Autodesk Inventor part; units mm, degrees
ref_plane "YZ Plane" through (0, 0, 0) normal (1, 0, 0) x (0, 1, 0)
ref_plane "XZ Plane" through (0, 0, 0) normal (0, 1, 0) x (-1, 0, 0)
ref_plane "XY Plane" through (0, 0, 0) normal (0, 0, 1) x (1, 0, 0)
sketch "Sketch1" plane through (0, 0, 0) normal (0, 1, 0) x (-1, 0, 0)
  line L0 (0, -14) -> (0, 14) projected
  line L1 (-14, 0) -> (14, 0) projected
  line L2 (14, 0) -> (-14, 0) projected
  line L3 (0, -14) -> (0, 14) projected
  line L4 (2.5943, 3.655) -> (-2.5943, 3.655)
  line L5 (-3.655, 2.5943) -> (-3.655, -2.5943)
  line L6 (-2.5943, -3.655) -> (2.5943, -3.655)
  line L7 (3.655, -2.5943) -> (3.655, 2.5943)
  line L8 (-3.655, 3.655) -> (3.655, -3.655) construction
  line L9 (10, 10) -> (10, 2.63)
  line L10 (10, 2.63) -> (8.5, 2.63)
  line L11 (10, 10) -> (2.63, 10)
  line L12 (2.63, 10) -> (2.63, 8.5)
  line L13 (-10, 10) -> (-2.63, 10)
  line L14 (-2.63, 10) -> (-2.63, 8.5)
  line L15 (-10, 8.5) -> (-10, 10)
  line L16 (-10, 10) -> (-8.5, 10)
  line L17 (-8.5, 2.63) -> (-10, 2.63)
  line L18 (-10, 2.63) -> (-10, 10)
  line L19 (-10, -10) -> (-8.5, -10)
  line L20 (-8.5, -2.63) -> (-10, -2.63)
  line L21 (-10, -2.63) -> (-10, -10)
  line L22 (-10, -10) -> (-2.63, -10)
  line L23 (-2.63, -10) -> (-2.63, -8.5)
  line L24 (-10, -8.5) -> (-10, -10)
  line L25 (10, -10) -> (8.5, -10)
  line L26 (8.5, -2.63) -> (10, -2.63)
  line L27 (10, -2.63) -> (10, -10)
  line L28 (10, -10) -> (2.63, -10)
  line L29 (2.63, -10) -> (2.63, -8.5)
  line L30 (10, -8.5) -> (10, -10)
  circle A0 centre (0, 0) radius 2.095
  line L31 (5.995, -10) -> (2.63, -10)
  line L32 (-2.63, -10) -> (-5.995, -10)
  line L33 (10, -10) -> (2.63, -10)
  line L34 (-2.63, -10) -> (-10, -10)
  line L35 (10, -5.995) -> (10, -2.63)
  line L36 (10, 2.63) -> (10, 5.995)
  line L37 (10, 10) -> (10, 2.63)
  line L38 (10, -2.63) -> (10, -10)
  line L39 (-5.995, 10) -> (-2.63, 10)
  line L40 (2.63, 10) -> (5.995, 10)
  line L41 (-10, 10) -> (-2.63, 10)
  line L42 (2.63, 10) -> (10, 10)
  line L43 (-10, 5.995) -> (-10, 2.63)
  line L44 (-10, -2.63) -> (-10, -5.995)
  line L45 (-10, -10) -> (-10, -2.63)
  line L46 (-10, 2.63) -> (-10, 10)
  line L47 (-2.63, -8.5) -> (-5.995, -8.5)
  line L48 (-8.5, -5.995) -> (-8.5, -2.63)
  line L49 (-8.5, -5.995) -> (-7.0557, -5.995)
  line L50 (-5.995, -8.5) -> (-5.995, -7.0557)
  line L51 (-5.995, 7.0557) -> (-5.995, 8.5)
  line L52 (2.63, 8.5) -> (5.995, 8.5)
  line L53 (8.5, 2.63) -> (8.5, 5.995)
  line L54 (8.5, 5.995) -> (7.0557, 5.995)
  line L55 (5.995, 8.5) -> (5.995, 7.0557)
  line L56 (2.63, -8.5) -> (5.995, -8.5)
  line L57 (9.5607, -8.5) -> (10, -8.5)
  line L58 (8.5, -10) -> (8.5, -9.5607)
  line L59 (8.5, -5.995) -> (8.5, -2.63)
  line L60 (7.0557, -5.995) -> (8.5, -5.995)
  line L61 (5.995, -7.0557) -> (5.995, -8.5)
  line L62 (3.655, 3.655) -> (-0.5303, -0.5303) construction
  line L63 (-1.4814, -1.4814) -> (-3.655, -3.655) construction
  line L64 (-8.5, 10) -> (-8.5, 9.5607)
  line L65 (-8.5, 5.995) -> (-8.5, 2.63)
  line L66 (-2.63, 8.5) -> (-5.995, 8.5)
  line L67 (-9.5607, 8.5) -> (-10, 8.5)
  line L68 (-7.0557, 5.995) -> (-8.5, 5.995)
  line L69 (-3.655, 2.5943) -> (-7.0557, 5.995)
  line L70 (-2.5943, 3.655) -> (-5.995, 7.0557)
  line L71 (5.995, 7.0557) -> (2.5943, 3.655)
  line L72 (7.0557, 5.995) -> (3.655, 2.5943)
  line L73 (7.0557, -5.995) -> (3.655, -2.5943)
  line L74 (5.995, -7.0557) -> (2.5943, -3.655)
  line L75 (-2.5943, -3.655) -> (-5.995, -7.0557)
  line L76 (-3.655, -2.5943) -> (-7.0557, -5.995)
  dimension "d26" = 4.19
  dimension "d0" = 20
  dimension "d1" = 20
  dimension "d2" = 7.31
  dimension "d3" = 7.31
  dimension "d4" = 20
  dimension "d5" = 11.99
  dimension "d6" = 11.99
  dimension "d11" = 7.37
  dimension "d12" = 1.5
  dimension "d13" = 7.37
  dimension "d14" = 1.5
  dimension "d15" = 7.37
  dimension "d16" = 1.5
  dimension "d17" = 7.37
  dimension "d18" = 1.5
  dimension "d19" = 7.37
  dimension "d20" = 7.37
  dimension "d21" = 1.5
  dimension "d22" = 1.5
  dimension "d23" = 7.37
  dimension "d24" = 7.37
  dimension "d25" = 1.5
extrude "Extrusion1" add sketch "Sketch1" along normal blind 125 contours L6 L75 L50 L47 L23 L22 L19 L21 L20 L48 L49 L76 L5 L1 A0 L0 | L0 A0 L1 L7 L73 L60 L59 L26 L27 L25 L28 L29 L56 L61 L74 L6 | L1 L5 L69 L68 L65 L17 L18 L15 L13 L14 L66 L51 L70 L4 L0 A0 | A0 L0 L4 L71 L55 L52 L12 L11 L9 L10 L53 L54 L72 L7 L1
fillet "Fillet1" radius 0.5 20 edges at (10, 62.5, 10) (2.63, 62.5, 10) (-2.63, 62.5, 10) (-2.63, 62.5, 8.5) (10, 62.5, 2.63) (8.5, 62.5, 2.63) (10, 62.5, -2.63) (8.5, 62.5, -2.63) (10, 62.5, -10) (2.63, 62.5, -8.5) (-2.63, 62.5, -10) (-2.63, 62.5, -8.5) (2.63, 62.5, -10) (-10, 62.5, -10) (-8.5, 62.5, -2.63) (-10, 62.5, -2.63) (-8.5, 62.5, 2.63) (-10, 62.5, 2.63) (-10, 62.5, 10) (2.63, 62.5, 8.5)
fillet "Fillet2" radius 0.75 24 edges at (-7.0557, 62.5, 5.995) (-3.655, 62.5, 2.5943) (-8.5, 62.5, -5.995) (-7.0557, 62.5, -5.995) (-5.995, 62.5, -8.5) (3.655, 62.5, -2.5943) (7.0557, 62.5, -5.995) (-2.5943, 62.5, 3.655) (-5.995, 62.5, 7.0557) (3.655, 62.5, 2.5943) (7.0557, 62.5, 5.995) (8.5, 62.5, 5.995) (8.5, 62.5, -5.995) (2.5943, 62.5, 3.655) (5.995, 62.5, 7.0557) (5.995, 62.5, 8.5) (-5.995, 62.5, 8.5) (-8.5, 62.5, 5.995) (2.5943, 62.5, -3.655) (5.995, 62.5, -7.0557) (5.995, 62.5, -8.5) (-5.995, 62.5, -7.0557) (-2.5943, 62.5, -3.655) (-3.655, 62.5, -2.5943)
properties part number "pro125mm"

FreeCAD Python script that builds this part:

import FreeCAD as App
import Part
import Sketcher
from FreeCAD import Vector
Q = App.Units.Quantity


def edges_at(feature, points):
    """Names of the edges that pass closest to the given points."""
    edges = feature.Shape.Edges
    near = lambda p: min(range(len(edges)), key=lambda i: edges[i].distToShape(Part.Vertex(*p))[0])
    return sorted({f"Edge{near(p) + 1}" for p in points})

doc = App.newDocument("Part")
params = doc.addObject("Spreadsheet::Sheet", "Params")
for row, (alias, value) in enumerate([
    ("sketch1_diameter", "4.19 mm"),
    ("sketch1_width", "1.5 mm"),
    ("sketch1_width2", "7.37 mm"),
    ("pad1_length", "125 mm"),
    ("fillet_radius", "0.5 mm"),
    ("fillet2_radius", "0.75 mm"),
], start=1):
    params.set(f"A{row}", alias)
    params.set(f"B{row}", "=" + value)
    params.setAlias(f"B{row}", alias)

body = doc.addObject("PartDesign::Body", "Body")

sketch1 = body.newObject("Sketcher::SketchObject", "Sketch")
sketch1.AttachmentSupport = (doc.getObject("XZ_Plane"), [""])
sketch1.MapMode = "FlatFace"
sketch1.addGeometry([
    Part.LineSegment(Vector(2.5943, -3.655, 0), Vector(-2.5943, -3.655, 0)),
    Part.LineSegment(Vector(-2.5943, -3.655, 0), Vector(-5.995, -7.0557, 0)),
    Part.LineSegment(Vector(-5.995, -7.0557, 0), Vector(-5.995, -8.5, 0)),
    Part.LineSegment(Vector(-5.995, -8.5, 0), Vector(-2.63, -8.5, 0)),
    Part.LineSegment(Vector(-2.63, -8.5, 0), Vector(-2.63, -10, 0)),
    Part.LineSegment(Vector(-2.63, -10, 0), Vector(-10, -10, 0)),
    Part.LineSegment(Vector(-10, -10, 0), Vector(-10, -2.63, 0)),
    Part.LineSegment(Vector(-10, -2.63, 0), Vector(-8.5, -2.63, 0)),
    Part.LineSegment(Vector(-8.5, -2.63, 0), Vector(-8.5, -5.995, 0)),
    Part.LineSegment(Vector(-8.5, -5.995, 0), Vector(-7.0557, -5.995, 0)),
    Part.LineSegment(Vector(-7.0557, -5.995, 0), Vector(-3.655, -2.5943, 0)),
    Part.LineSegment(Vector(-3.655, -2.5943, 0), Vector(-3.655, 2.5943, 0)),
    Part.LineSegment(Vector(-3.655, 2.5943, 0), Vector(-7.0557, 5.995, 0)),
    Part.LineSegment(Vector(-7.0557, 5.995, 0), Vector(-8.5, 5.995, 0)),
    Part.LineSegment(Vector(-8.5, 5.995, 0), Vector(-8.5, 2.63, 0)),
    Part.LineSegment(Vector(-8.5, 2.63, 0), Vector(-10, 2.63, 0)),
    Part.LineSegment(Vector(-10, 2.63, 0), Vector(-10, 10, 0)),
    Part.LineSegment(Vector(-10, 10, 0), Vector(-2.63, 10, 0)),
    Part.LineSegment(Vector(-2.63, 10, 0), Vector(-2.63, 8.5, 0)),
    Part.LineSegment(Vector(-2.63, 8.5, 0), Vector(-5.995, 8.5, 0)),
    Part.LineSegment(Vector(-5.995, 8.5, 0), Vector(-5.995, 7.0557, 0)),
    Part.LineSegment(Vector(-5.995, 7.0557, 0), Vector(-2.5943, 3.655, 0)),
    Part.LineSegment(Vector(-2.5943, 3.655, 0), Vector(2.5943, 3.655, 0)),
    Part.LineSegment(Vector(2.5943, 3.655, 0), Vector(5.995, 7.0557, 0)),
    Part.LineSegment(Vector(5.995, 7.0557, 0), Vector(5.995, 8.5, 0)),
    Part.LineSegment(Vector(5.995, 8.5, 0), Vector(2.63, 8.5, 0)),
    Part.LineSegment(Vector(2.63, 8.5, 0), Vector(2.63, 10, 0)),
    Part.LineSegment(Vector(2.63, 10, 0), Vector(10, 10, 0)),
    Part.LineSegment(Vector(10, 10, 0), Vector(10, 2.63, 0)),
    Part.LineSegment(Vector(10, 2.63, 0), Vector(8.5, 2.63, 0)),
    Part.LineSegment(Vector(8.5, 2.63, 0), Vector(8.5, 5.995, 0)),
    Part.LineSegment(Vector(8.5, 5.995, 0), Vector(7.0557, 5.995, 0)),
    Part.LineSegment(Vector(7.0557, 5.995, 0), Vector(3.655, 2.5943, 0)),
    Part.LineSegment(Vector(3.655, 2.5943, 0), Vector(3.655, -2.5943, 0)),
    Part.LineSegment(Vector(3.655, -2.5943, 0), Vector(7.0557, -5.995, 0)),
    Part.LineSegment(Vector(7.0557, -5.995, 0), Vector(8.5, -5.995, 0)),
    Part.LineSegment(Vector(8.5, -5.995, 0), Vector(8.5, -2.63, 0)),
    Part.LineSegment(Vector(8.5, -2.63, 0), Vector(10, -2.63, 0)),
    Part.LineSegment(Vector(10, -2.63, 0), Vector(10, -10, 0)),
    Part.LineSegment(Vector(10, -10, 0), Vector(2.63, -10, 0)),
    Part.LineSegment(Vector(2.63, -10, 0), Vector(2.63, -8.5, 0)),
    Part.LineSegment(Vector(2.63, -8.5, 0), Vector(5.995, -8.5, 0)),
    Part.LineSegment(Vector(5.995, -8.5, 0), Vector(5.995, -7.0557, 0)),
    Part.LineSegment(Vector(5.995, -7.0557, 0), Vector(2.5943, -3.655, 0)),
    Part.Circle(Vector(0, 0, 0), Vector(0, 0, 1), 2.095),
], False)
sketch1.addConstraint([
    Sketcher.Constraint("Coincident", 0, 2, 1, 1),
    Sketcher.Constraint("Coincident", 1, 2, 2, 1),
    Sketcher.Constraint("Coincident", 2, 2, 3, 1),
    Sketcher.Constraint("Coincident", 3, 2, 4, 1),
    Sketcher.Constraint("Coincident", 4, 2, 5, 1),
    Sketcher.Constraint("Coincident", 5, 2, 6, 1),
    Sketcher.Constraint("Coincident", 6, 2, 7, 1),
    Sketcher.Constraint("Coincident", 7, 2, 8, 1),
    Sketcher.Constraint("Coincident", 8, 2, 9, 1),
    Sketcher.Constraint("Coincident", 9, 2, 10, 1),
    Sketcher.Constraint("Coincident", 10, 2, 11, 1),
    Sketcher.Constraint("Coincident", 11, 2, 12, 1),
    Sketcher.Constraint("Coincident", 12, 2, 13, 1),
    Sketcher.Constraint("Coincident", 13, 2, 14, 1),
    Sketcher.Constraint("Coincident", 14, 2, 15, 1),
    Sketcher.Constraint("Coincident", 15, 2, 16, 1),
    Sketcher.Constraint("Coincident", 16, 2, 17, 1),
    Sketcher.Constraint("Coincident", 17, 2, 18, 1),
    Sketcher.Constraint("Coincident", 18, 2, 19, 1),
    Sketcher.Constraint("Coincident", 19, 2, 20, 1),
    Sketcher.Constraint("Coincident", 20, 2, 21, 1),
    Sketcher.Constraint("Coincident", 21, 2, 22, 1),
    Sketcher.Constraint("Coincident", 22, 2, 23, 1),
    Sketcher.Constraint("Coincident", 23, 2, 24, 1),
    Sketcher.Constraint("Coincident", 24, 2, 25, 1),
    Sketcher.Constraint("Coincident", 25, 2, 26, 1),
    Sketcher.Constraint("Coincident", 26, 2, 27, 1),
    Sketcher.Constraint("Coincident", 27, 2, 28, 1),
    Sketcher.Constraint("Coincident", 28, 2, 29, 1),
    Sketcher.Constraint("Coincident", 29, 2, 30, 1),
    Sketcher.Constraint("Coincident", 30, 2, 31, 1),
    Sketcher.Constraint("Coincident", 31, 2, 32, 1),
    Sketcher.Constraint("Coincident", 32, 2, 33, 1),
    Sketcher.Constraint("Coincident", 33, 2, 34, 1),
    Sketcher.Constraint("Coincident", 34, 2, 35, 1),
    Sketcher.Constraint("Coincident", 35, 2, 36, 1),
    Sketcher.Constraint("Coincident", 36, 2, 37, 1),
    Sketcher.Constraint("Coincident", 37, 2, 38, 1),
    Sketcher.Constraint("Coincident", 38, 2, 39, 1),
    Sketcher.Constraint("Coincident", 39, 2, 40, 1),
    Sketcher.Constraint("Coincident", 40, 2, 41, 1),
    Sketcher.Constraint("Coincident", 41, 2, 42, 1),
    Sketcher.Constraint("Coincident", 42, 2, 43, 1),
    Sketcher.Constraint("Coincident", 43, 2, 0, 1),
    Sketcher.Constraint("Horizontal", 0),
    Sketcher.Constraint("Vertical", 2),
    Sketcher.Constraint("Horizontal", 3),
    Sketcher.Constraint("Vertical", 4),
    Sketcher.Constraint("Horizontal", 5),
    Sketcher.Constraint("Vertical", 6),
    Sketcher.Constraint("Horizontal", 7),
    Sketcher.Constraint("Vertical", 8),
    Sketcher.Constraint("Horizontal", 9),
    Sketcher.Constraint("Vertical", 11),
    Sketcher.Constraint("Horizontal", 13),
    Sketcher.Constraint("Vertical", 14),
    Sketcher.Constraint("Horizontal", 15),
    Sketcher.Constraint("Vertical", 16),
    Sketcher.Constraint("Horizontal", 17),
    Sketcher.Constraint("Vertical", 18),
    Sketcher.Constraint("Horizontal", 19),
    Sketcher.Constraint("Vertical", 20),
    Sketcher.Constraint("Horizontal", 22),
    Sketcher.Constraint("Vertical", 24),
    Sketcher.Constraint("Horizontal", 25),
    Sketcher.Constraint("Vertical", 26),
    Sketcher.Constraint("Horizontal", 27),
    Sketcher.Constraint("Vertical", 28),
    Sketcher.Constraint("Horizontal", 29),
    Sketcher.Constraint("Vertical", 30),
    Sketcher.Constraint("Horizontal", 31),
    Sketcher.Constraint("Vertical", 33),
    Sketcher.Constraint("Horizontal", 35),
    Sketcher.Constraint("Vertical", 36),
    Sketcher.Constraint("Horizontal", 37),
    Sketcher.Constraint("Vertical", 38),
    Sketcher.Constraint("Horizontal", 39),
    Sketcher.Constraint("Vertical", 40),
    Sketcher.Constraint("Horizontal", 41),
    Sketcher.Constraint("Vertical", 42),
    Sketcher.Constraint("Coincident", 44, 3, -1, 1),
    Sketcher.Constraint("Symmetric", 0, 2, 22, 2, -1, 1),
    Sketcher.Constraint("Symmetric", 1, 2, 23, 2, -1, 1),
    Sketcher.Constraint("Symmetric", 3, 2, 25, 2, -1, 1),
    Sketcher.Constraint("Symmetric", 5, 2, 27, 2, -1, 1),
    Sketcher.Constraint("Symmetric", 7, 2, 29, 2, -1, 1),
    Sketcher.Constraint("Symmetric", 9, 2, 31, 2, -1, 1),
    Sketcher.Constraint("Symmetric", 10, 2, 32, 2, -1, 1),
    Sketcher.Constraint("Symmetric", 12, 2, 34, 2, -1, 1),
    Sketcher.Constraint("Symmetric", 14, 2, 36, 2, -1, 1),
    Sketcher.Constraint("Symmetric", 16, 2, 38, 2, -1, 1),
    Sketcher.Constraint("Symmetric", 18, 2, 40, 2, -1, 1),
    Sketcher.Constraint("Symmetric", 20, 2, 42, 2, -1, 1),
    Sketcher.Constraint("Symmetric", 20, 2, 23, 2, -2),
    Sketcher.Constraint("Symmetric", 18, 2, 25, 2, -2),
    Sketcher.Constraint("Symmetric", 16, 2, 27, 2, -2),
    Sketcher.Constraint("Symmetric", 14, 2, 29, 2, -2),
    Sketcher.Constraint("Symmetric", 12, 2, 31, 2, -2),
    Sketcher.Constraint("Parallel", 1, 10),
    Sketcher.Constraint("Perpendicular", 10, 12),
    Sketcher.Constraint("Parallel", 12, 21),
    Sketcher.Constraint("Perpendicular", 32, 34),
    Sketcher.Constraint("Parallel", 34, 43),
    Sketcher.Constraint("Horizontal", 11, 2, 32, 2),
    Sketcher.Constraint("Equal", 35, 2),
    Sketcher.Constraint("Equal", 37, 4),
    Sketcher.Constraint("Equal", 39, 6),
    Sketcher.Constraint("Equal", 41, 8),
    Sketcher.Constraint("Equal", 22, 11),
    Sketcher.Constraint("Equal", 1, 10),
    Sketcher.Constraint("Diameter", 44, Q("4.19 mm")),
    Sketcher.Constraint("DistanceX", 7, 1, 7, 2, Q("1.5 mm")),
    Sketcher.Constraint("DistanceX", 5, 2, 5, 1, Q("7.37 mm")),
    Sketcher.Constraint("DistanceY", 4, 2, -1, 1, Q("10 mm")),
    Sketcher.Constraint("DistanceX", 3, 1, 3, 2, Q("3.365 mm")),
    Sketcher.Constraint("DistanceX", 1, 2, 10, 2, Q("2.34 mm")),
    Sketcher.Constraint("DistanceX", 0, 2, 0, 1, Q("5.1886 mm")),
])
sketch1.setExpression("Constraints[110]", "Params.sketch1_diameter")
sketch1.setExpression("Constraints[111]", "Params.sketch1_width")
sketch1.setExpression("Constraints[112]", "Params.sketch1_width2")
pad1 = body.newObject("PartDesign::Pad", "Pad")
pad1.Profile = sketch1
pad1.setExpression("Length", "Params.pad1_length")
pad1.Reversed = True
doc.recompute()

fillet = body.newObject("PartDesign::Fillet", "Fillet")
fillet.Base = (pad1, edges_at(pad1, [
    (10, 62.5, 10),
    (2.63, 62.5, 10),
    (-2.63, 62.5, 10),
    (-2.63, 62.5, 8.5),
    (10, 62.5, 2.63),
    (8.5, 62.5, 2.63),
    (10, 62.5, -2.63),
    (8.5, 62.5, -2.63),
    (10, 62.5, -10),
    (2.63, 62.5, -8.5),
    (-2.63, 62.5, -10),
    (-2.63, 62.5, -8.5),
    (2.63, 62.5, -10),
    (-10, 62.5, -10),
    (-8.5, 62.5, -2.63),
    (-10, 62.5, -2.63),
    (-8.5, 62.5, 2.63),
    (-10, 62.5, 2.63),
    (-10, 62.5, 10),
    (2.63, 62.5, 8.5),
]))
fillet.setExpression("Radius", "Params.fillet_radius")
doc.recompute()

fillet2 = body.newObject("PartDesign::Fillet", "Fillet001")
fillet2.Base = (fillet, edges_at(fillet, [
    (-7.056, 62.5, 5.995),
    (-3.655, 62.5, 2.594),
    (-8.5, 62.5, -5.995),
    (-7.056, 62.5, -5.995),
    (-5.995, 62.5, -8.5),
    (3.655, 62.5, -2.594),
    (7.056, 62.5, -5.995),
    (-2.594, 62.5, 3.655),
    (-5.995, 62.5, 7.056),
    (3.655, 62.5, 2.594),
    (7.056, 62.5, 5.995),
    (8.5, 62.5, 5.995),
    (8.5, 62.5, -5.995),
    (2.594, 62.5, 3.655),
    (5.995, 62.5, 7.056),
    (5.995, 62.5, 8.5),
    (-5.995, 62.5, 8.5),
    (-8.5, 62.5, 5.995),
    (2.594, 62.5, -3.655),
    (5.995, 62.5, -7.056),
    (5.995, 62.5, -8.5),
    (-5.995, 62.5, -7.056),
    (-2.594, 62.5, -3.655),
    (-3.655, 62.5, -2.594),
]))
fillet2.setExpression("Radius", "Params.fillet2_radius")

doc.recompute()
